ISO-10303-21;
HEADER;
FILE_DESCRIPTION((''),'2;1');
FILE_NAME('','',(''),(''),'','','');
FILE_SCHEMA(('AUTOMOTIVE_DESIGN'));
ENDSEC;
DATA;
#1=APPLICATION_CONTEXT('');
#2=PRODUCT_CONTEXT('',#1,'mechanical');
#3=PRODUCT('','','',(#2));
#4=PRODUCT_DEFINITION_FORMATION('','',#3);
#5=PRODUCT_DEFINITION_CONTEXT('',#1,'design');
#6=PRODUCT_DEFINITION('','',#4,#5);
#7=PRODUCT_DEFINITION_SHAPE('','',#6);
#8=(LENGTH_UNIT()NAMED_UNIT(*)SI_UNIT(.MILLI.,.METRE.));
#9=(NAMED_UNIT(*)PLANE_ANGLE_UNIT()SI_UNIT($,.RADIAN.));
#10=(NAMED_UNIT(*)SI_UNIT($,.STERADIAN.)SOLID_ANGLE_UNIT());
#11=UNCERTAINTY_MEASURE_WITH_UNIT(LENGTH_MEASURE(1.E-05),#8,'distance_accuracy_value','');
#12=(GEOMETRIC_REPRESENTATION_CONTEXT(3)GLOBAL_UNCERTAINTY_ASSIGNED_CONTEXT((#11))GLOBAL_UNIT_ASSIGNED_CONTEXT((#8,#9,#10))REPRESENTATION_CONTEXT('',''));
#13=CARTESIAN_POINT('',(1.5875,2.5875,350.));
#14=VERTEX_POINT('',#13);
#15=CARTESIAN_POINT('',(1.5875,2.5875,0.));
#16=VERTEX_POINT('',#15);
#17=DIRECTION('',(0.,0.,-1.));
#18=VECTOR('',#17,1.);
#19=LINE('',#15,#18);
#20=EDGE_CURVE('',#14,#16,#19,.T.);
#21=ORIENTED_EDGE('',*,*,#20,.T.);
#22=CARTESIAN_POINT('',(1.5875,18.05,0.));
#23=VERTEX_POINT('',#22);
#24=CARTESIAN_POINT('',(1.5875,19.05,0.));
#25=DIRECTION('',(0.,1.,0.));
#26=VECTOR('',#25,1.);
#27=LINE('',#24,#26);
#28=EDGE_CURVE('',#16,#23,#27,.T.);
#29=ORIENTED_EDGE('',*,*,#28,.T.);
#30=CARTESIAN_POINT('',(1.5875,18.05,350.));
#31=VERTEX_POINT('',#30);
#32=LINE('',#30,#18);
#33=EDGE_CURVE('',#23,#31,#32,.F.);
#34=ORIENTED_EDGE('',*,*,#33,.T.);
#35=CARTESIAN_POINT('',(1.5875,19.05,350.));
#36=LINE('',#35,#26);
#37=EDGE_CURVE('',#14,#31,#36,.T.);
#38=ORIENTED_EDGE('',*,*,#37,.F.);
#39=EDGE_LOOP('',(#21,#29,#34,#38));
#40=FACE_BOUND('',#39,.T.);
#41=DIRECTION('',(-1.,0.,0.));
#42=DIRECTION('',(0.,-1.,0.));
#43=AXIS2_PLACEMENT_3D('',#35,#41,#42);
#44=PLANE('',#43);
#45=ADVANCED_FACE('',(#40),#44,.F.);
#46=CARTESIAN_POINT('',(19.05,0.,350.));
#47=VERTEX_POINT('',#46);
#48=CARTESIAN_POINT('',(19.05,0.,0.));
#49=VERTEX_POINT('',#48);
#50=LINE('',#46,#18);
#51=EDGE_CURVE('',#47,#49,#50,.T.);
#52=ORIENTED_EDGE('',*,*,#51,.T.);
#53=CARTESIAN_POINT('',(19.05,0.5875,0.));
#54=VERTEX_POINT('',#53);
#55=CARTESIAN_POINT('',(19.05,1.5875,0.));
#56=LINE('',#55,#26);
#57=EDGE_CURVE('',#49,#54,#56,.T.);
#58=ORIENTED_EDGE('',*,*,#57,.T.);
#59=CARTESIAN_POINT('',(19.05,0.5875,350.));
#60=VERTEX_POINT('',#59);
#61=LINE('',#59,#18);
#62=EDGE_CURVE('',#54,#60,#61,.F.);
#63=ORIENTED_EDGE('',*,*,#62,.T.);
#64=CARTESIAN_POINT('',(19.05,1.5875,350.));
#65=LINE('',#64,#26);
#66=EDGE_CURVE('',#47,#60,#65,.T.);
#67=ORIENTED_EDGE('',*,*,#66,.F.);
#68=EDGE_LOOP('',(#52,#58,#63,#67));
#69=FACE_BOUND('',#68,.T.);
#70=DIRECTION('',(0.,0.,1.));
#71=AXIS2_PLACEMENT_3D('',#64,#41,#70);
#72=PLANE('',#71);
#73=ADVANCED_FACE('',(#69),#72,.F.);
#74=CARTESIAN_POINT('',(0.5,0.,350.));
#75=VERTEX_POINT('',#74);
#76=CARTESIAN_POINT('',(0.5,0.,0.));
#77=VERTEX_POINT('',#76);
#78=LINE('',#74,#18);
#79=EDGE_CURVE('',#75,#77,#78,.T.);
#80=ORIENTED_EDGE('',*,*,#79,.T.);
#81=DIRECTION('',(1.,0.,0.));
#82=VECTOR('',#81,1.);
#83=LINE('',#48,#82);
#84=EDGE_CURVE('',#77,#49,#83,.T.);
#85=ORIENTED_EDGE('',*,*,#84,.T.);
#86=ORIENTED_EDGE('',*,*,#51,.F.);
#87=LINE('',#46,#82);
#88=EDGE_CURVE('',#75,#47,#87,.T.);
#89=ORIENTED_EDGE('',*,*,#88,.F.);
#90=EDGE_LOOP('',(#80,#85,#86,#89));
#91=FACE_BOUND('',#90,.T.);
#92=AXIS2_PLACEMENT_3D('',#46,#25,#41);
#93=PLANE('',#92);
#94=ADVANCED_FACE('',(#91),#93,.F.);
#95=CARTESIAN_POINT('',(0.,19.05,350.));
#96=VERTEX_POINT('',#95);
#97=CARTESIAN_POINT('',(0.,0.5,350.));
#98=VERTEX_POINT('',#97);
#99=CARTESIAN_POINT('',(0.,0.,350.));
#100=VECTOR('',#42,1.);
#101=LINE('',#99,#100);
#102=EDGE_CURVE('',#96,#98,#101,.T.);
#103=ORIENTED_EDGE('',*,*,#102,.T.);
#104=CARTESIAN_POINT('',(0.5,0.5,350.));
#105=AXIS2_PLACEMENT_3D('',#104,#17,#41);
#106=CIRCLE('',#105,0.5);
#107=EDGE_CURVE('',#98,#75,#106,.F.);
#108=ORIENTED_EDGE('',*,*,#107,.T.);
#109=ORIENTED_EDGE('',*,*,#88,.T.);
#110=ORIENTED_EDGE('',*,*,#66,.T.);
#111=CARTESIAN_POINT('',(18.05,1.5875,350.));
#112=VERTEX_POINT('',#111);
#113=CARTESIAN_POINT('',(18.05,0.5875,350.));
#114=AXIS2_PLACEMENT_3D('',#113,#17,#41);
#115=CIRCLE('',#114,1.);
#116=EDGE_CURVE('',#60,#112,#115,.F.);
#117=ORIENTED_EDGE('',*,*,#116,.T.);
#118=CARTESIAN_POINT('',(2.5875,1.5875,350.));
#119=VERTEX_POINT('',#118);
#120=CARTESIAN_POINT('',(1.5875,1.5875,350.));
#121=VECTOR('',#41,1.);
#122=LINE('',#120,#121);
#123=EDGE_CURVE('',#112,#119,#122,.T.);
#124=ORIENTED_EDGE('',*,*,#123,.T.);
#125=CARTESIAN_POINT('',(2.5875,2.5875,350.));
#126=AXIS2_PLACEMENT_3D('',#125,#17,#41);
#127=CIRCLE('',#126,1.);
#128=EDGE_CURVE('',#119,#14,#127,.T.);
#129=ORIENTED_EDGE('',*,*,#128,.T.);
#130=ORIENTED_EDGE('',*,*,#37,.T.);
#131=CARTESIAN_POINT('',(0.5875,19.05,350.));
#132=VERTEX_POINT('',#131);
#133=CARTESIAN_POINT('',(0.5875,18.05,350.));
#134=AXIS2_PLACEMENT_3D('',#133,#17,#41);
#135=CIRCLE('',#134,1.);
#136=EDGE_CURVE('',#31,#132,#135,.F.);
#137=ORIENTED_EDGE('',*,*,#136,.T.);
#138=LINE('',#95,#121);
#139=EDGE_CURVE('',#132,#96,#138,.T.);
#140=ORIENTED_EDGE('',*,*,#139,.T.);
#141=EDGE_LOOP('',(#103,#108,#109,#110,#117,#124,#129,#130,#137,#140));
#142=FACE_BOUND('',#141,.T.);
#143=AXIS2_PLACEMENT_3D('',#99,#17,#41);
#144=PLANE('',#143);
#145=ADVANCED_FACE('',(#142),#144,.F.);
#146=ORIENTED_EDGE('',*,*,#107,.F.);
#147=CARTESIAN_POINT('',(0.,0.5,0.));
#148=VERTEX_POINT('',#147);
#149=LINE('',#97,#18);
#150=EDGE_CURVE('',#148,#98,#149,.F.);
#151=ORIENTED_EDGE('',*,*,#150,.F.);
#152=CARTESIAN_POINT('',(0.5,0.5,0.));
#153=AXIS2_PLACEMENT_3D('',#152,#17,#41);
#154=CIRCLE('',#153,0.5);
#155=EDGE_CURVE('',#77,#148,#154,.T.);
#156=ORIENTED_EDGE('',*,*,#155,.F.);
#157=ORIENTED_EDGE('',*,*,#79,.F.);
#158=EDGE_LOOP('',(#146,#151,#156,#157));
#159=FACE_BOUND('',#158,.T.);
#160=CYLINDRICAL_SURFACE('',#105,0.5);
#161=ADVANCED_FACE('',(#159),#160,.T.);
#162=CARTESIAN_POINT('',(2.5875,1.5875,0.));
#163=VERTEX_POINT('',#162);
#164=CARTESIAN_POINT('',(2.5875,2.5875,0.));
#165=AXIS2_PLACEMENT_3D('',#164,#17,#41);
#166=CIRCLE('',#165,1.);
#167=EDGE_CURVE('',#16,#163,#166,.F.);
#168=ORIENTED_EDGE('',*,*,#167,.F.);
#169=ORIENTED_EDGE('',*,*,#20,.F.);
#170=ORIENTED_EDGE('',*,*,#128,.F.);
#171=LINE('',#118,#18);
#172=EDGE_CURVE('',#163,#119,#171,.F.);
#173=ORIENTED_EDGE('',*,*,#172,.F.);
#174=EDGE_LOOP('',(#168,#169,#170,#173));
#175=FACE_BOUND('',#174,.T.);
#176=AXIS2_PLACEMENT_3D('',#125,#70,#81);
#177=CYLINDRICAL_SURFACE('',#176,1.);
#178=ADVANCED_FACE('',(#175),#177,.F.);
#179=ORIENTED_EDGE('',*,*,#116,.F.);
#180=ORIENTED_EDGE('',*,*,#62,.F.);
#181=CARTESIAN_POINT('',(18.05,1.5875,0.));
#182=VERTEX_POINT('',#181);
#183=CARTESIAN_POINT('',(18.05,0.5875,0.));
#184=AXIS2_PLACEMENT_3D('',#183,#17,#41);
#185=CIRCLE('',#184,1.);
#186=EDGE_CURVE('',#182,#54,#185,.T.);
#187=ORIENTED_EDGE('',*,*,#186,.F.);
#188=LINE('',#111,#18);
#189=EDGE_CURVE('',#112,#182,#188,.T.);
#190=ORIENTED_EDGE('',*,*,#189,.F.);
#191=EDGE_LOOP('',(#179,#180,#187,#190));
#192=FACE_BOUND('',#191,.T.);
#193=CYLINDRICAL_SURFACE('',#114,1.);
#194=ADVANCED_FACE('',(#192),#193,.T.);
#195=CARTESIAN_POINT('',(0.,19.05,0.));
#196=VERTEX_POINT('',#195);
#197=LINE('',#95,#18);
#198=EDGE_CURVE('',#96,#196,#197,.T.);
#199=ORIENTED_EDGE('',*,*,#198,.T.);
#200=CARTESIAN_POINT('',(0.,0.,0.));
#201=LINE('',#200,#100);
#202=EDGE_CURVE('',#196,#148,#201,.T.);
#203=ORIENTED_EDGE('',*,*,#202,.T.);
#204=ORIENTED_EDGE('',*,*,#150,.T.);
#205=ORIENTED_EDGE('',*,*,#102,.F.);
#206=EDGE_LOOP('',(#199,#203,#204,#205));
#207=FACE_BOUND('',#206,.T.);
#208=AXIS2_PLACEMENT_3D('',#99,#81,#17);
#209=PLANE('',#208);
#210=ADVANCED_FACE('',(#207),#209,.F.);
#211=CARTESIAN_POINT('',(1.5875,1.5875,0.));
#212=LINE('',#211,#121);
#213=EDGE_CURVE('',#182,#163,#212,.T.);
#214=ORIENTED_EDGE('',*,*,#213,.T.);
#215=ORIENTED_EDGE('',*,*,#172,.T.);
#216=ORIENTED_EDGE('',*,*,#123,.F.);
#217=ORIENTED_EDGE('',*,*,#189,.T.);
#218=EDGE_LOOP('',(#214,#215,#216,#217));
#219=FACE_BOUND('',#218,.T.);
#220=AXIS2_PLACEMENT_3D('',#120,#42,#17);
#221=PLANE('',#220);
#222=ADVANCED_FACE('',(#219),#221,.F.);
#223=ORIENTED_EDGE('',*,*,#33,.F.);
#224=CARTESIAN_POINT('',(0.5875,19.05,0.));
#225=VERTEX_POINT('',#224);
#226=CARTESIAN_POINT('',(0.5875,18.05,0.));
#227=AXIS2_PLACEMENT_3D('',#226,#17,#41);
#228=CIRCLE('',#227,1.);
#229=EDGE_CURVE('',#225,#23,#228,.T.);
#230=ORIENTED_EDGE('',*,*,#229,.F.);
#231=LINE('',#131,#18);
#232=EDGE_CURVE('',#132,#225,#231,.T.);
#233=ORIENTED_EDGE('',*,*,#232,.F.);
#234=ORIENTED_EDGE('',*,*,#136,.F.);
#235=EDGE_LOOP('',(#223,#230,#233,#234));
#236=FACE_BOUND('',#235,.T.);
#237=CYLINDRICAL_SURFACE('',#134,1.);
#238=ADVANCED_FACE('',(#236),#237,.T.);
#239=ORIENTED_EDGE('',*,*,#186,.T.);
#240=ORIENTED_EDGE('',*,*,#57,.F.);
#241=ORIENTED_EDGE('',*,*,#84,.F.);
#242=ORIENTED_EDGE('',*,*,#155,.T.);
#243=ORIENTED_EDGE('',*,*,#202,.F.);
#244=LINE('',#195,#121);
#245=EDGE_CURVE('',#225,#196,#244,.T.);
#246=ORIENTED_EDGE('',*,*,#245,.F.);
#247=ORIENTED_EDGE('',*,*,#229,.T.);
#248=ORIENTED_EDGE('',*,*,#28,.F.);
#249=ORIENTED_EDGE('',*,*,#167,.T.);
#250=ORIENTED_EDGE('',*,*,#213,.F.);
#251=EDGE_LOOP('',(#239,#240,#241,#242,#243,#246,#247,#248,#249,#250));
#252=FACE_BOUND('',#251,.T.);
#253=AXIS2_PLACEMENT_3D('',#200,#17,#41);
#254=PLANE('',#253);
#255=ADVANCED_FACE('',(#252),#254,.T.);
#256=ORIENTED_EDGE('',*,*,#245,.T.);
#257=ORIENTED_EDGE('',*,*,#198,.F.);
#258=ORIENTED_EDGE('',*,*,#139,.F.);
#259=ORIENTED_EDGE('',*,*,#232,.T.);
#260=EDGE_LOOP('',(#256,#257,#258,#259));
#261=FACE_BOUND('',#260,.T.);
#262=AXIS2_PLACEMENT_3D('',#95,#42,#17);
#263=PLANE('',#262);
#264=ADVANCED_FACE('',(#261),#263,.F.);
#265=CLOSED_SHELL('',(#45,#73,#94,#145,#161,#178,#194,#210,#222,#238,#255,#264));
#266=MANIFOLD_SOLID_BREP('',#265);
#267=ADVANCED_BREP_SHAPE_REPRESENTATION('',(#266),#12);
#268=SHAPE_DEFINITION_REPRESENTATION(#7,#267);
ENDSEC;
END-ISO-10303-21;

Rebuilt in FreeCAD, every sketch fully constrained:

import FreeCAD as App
import Part
import Sketcher
from FreeCAD import Vector


def edges_at(feature, points):
    """Names of the edges that pass closest to the given points."""
    edges = feature.Shape.Edges
    near = lambda p: min(range(len(edges)), key=lambda i: edges[i].distToShape(Part.Vertex(*p))[0])
    return sorted({f"Edge{near(p) + 1}" for p in points})


def add_polygon(sketch, points):
    """Adds a closed chain of lines whose ends are joined by coincident constraints."""
    first, n = sketch.GeometryCount, len(points)
    for a, b in zip(points, points[1:] + points[:1]):
        sketch.addGeometry(Part.LineSegment(App.Vector(*a, 0), App.Vector(*b, 0)), False)
    for i in range(n):
        sketch.addConstraint(Sketcher.Constraint("Coincident", first + i, 2, first + (i + 1) % n, 1))

doc = App.newDocument("Part")
params = doc.addObject("Spreadsheet::Sheet", "Params")
for row, (alias, value) in enumerate([
    ("sketch1_width", "19.05 mm"),
    ("pad1_length", "350 mm"),
    ("fillet_radius", "1 mm"),
    ("fillet2_radius", "0.5 mm"),
], start=1):
    params.set(f"A{row}", alias)
    params.set(f"B{row}", "=" + value)
    params.setAlias(f"B{row}", alias)

body = doc.addObject("PartDesign::Body", "Body")

sketch1 = body.newObject("Sketcher::SketchObject", "Sketch")
sketch1.AttachmentSupport = (doc.getObject("XY_Plane"), [""])
sketch1.MapMode = "FlatFace"
add_polygon(sketch1, [(0, 19.1), (0, 0), (19.1, 0), (19.1, 1.6), (1.6, 1.6), (1.6, 19.1)])
sketch1.addConstraint(Sketcher.Constraint("Vertical", 0))
sketch1.addConstraint(Sketcher.Constraint("Horizontal", 1))
sketch1.addConstraint(Sketcher.Constraint("Vertical", 2))
sketch1.addConstraint(Sketcher.Constraint("Horizontal", 3))
sketch1.addConstraint(Sketcher.Constraint("Vertical", 4))
sketch1.addConstraint(Sketcher.Constraint("Horizontal", 5))
sketch1.addConstraint(Sketcher.Constraint("Coincident", 0, 2, -1, 1))
sketch1.addConstraint(Sketcher.Constraint("Equal", 1, 0))
sketch1.addConstraint(Sketcher.Constraint("Equal", 5, 2))
sketch1.addConstraint(Sketcher.Constraint("DistanceX", 1, 1, 1, 2, 19.05))
sketch1.addConstraint(Sketcher.Constraint("DistanceX", 3, 2, 3, 1, 17.4625))
sketch1.setExpression("Constraints[15]", "Params.sketch1_width")
pad1 = body.newObject("PartDesign::Pad", "Pad")
pad1.Profile = sketch1
pad1.setExpression("Length", "Params.pad1_length")
doc.recompute()

fillet = body.newObject("PartDesign::Fillet", "Fillet")
fillet.Base = (pad1, edges_at(pad1, [(1.587, 19.05, 175), (1.587, 1.587, 175), (19.05, 1.587, 175)]))
fillet.setExpression("Radius", "Params.fillet_radius")
doc.recompute()

fillet2 = body.newObject("PartDesign::Fillet", "Fillet001")
fillet2.Base = (fillet, edges_at(fillet, [(0, 0, 175)]))
fillet2.setExpression("Radius", "Params.fillet2_radius")

doc.recompute()
